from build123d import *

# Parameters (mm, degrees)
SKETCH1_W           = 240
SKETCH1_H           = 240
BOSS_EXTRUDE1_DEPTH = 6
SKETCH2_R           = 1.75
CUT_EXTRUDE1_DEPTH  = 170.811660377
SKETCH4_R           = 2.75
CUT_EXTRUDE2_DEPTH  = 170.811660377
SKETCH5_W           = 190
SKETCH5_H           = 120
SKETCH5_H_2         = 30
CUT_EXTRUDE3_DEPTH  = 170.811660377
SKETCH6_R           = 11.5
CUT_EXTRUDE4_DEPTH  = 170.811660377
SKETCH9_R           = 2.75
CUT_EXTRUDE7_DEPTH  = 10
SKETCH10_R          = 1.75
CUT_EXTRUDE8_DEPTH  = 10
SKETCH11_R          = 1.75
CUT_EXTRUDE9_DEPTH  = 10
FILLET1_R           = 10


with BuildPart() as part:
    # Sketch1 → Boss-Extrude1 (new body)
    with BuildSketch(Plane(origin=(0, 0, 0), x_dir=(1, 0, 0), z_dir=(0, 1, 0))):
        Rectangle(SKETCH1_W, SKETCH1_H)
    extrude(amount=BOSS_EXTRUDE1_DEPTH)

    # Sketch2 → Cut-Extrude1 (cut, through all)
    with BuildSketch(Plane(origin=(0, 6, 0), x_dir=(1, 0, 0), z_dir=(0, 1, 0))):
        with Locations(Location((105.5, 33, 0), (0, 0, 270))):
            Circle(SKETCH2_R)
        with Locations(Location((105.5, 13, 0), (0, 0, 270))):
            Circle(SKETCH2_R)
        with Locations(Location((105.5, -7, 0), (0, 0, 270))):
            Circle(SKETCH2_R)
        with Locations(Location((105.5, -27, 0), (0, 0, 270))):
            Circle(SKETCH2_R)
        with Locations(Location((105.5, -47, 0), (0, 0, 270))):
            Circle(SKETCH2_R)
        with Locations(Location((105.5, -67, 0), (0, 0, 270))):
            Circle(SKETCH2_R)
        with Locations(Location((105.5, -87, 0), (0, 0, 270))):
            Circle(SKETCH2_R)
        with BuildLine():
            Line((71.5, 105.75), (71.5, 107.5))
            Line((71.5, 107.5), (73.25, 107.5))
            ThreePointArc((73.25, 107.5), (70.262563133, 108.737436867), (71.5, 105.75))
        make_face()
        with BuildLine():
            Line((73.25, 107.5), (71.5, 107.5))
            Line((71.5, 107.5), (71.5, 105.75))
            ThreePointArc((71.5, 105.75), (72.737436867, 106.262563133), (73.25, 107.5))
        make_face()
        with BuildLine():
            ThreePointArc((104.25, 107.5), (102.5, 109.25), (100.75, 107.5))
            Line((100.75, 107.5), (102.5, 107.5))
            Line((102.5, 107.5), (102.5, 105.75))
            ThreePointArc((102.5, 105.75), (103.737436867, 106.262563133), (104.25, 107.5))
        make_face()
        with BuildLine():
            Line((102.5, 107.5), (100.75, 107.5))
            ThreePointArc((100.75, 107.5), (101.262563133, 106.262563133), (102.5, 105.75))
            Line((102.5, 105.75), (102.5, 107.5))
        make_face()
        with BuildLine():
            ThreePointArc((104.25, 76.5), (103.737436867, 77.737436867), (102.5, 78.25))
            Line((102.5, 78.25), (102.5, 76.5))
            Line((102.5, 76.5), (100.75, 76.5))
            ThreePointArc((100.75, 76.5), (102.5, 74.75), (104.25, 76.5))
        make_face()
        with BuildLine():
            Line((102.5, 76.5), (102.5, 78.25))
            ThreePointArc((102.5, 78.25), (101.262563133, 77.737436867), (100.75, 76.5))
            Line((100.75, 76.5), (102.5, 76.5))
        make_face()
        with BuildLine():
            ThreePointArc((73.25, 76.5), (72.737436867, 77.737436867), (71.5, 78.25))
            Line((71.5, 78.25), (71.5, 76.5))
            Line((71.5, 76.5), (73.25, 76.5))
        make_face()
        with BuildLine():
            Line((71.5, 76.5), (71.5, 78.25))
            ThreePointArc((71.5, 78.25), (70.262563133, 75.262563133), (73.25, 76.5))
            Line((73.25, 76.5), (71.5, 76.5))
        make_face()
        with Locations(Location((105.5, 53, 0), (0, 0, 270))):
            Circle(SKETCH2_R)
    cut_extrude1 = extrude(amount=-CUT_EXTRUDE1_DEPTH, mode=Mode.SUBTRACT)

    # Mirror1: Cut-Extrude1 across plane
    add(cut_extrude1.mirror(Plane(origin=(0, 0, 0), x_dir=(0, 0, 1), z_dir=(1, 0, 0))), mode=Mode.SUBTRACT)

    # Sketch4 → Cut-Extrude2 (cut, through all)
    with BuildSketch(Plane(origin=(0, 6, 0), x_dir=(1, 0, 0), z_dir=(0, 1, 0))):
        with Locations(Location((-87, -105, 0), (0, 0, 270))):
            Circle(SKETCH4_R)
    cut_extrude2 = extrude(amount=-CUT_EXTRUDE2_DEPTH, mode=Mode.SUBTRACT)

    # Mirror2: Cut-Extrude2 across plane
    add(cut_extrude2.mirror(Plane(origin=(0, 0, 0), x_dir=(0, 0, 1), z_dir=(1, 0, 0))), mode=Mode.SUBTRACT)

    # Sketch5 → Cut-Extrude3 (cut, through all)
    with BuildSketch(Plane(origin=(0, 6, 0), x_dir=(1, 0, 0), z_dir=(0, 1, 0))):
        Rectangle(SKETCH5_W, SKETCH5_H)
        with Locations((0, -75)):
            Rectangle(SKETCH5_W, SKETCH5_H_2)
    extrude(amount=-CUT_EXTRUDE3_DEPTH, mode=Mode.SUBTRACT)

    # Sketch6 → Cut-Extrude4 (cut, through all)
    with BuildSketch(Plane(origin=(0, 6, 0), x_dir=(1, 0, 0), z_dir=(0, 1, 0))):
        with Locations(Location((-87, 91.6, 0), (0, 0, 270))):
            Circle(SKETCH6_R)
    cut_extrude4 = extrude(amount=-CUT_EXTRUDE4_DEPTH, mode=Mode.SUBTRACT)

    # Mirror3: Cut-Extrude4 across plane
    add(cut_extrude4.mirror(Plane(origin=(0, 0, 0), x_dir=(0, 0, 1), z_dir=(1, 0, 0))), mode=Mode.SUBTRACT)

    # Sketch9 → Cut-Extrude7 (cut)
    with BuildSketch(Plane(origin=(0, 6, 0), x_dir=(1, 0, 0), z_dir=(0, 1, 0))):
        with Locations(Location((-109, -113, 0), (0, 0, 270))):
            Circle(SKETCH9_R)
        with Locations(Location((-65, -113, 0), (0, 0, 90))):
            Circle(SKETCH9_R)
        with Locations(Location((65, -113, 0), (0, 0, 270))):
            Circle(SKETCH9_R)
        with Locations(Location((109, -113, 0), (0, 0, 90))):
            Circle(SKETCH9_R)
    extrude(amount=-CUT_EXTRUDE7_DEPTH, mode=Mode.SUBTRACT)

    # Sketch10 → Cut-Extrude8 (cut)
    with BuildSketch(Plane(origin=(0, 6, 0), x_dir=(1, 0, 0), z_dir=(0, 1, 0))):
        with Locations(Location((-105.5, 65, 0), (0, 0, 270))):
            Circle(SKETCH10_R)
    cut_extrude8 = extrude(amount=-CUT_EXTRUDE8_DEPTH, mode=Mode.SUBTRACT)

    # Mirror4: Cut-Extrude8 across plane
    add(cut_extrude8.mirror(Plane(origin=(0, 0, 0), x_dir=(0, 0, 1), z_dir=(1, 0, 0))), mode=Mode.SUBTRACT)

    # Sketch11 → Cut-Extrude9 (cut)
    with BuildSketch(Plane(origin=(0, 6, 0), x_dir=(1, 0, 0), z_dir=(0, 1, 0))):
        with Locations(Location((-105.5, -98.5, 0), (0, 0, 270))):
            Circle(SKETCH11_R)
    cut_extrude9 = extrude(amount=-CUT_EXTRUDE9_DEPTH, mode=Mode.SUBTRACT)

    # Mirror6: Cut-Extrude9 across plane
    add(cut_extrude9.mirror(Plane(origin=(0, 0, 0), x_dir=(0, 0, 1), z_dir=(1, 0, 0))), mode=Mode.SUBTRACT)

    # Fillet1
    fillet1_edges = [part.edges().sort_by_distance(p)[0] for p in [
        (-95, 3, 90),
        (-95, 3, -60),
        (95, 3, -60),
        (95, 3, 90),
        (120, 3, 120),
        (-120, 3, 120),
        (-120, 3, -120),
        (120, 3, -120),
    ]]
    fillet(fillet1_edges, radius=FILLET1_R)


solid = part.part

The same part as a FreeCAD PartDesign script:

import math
import FreeCAD as App
import Part
import Sketcher
Q = App.Units.Quantity


def edges_at(feature, points):
    """Names of the edges that pass closest to the given points."""
    edges = feature.Shape.Edges
    near = lambda p: min(range(len(edges)), key=lambda i: edges[i].distToShape(Part.Vertex(*p))[0])
    return sorted({f"Edge{near(p) + 1}" for p in points})

doc = App.newDocument("Part")
body = doc.addObject("PartDesign::Body", "Body")

# Sketch on XZ plane
sketch1 = body.newObject("Sketcher::SketchObject", "Sketch")
sketch1.AttachmentSupport = (doc.getObject("XZ_Plane"), [""])
sketch1.MapMode = "FlatFace"
sketch1.addGeometry([
    Part.LineSegment(App.Vector(-120, -120, 0), App.Vector(-120, 120, 0)),
    Part.LineSegment(App.Vector(-120, 120, 0), App.Vector(120, 120, 0)),
    Part.LineSegment(App.Vector(120, 120, 0), App.Vector(120, -120, 0)),
    Part.LineSegment(App.Vector(120, -120, 0), App.Vector(-120, -120, 0)),
], False)
sketch1.addConstraint([
    Sketcher.Constraint("Coincident", 0, 2, 1, 1),
    Sketcher.Constraint("Coincident", 1, 2, 2, 1),
    Sketcher.Constraint("Coincident", 2, 2, 3, 1),
    Sketcher.Constraint("Coincident", 3, 2, 0, 1),
    Sketcher.Constraint("Vertical", 0),
    Sketcher.Constraint("Horizontal", 1),
    Sketcher.Constraint("Vertical", 2),
    Sketcher.Constraint("Horizontal", 3),
    Sketcher.Constraint("Symmetric", 0, 2, 2, 2, -1, 1),
    Sketcher.Constraint("Equal", 3, 0),
    Sketcher.Constraint("DistanceX", 1, 1, 1, 2, Q("240 mm")),
])
pad1 = body.newObject("PartDesign::Pad", "Pad")
pad1.Profile = sketch1
pad1.Length = 6
pad1.Reversed = True

# Sketch on XZ plane
sketch2 = body.newObject("Sketcher::SketchObject", "Sketch001")
sketch2.AttachmentSupport = (doc.getObject("XZ_Plane"), [""])
sketch2.MapMode = "FlatFace"
sketch2.AttachmentOffset = App.Placement(App.Vector(0, 0, -6), App.Rotation())
sketch2.addGeometry([
    Part.Circle(App.Vector(105.5, -33, 0), App.Vector(0, 0, 1), 1.75),  # 0
    Part.Circle(App.Vector(105.5, -13, 0), App.Vector(0, 0, 1), 1.75),  # 1
    Part.Circle(App.Vector(105.5, 7, 0), App.Vector(0, 0, 1), 1.75),  # 2
    Part.Circle(App.Vector(105.5, 27, 0), App.Vector(0, 0, 1), 1.75),  # 3
    Part.Circle(App.Vector(105.5, 47, 0), App.Vector(0, 0, 1), 1.75),  # 4
    Part.Circle(App.Vector(105.5, 67, 0), App.Vector(0, 0, 1), 1.75),  # 5
    Part.Circle(App.Vector(105.5, 87, 0), App.Vector(0, 0, 1), 1.75),  # 6
    Part.ArcOfCircle(Part.Circle(App.Vector(71.5, -107.5, 0), App.Vector(0, 0, 1), 1.75), math.radians(90), math.radians(360)),  # 7
    Part.ArcOfCircle(Part.Circle(App.Vector(71.5, -107.5, 0), App.Vector(0, 0, 1), 1.75), math.radians(0), math.radians(90)),  # 8
    Part.ArcOfCircle(Part.Circle(App.Vector(102.5, -107.5, 0), App.Vector(0, 0, 1), 1.75), math.radians(180), math.radians(360)),  # 9
    Part.ArcOfCircle(Part.Circle(App.Vector(102.5, -107.5, 0), App.Vector(0, 0, 1), 1.75), math.radians(90), math.radians(180)),  # 10
    Part.ArcOfCircle(Part.Circle(App.Vector(102.5, -107.5, 0), App.Vector(0, 0, 1), 1.75), math.radians(0), math.radians(90)),  # 11
    Part.ArcOfCircle(Part.Circle(App.Vector(102.5, -76.5, 0), App.Vector(0, 0, 1), 1.75), math.radians(-90), math.radians(0)),  # 12
    Part.ArcOfCircle(Part.Circle(App.Vector(102.5, -76.5, 0), App.Vector(0, 0, 1), 1.75), math.radians(180), math.radians(270)),  # 13
    Part.ArcOfCircle(Part.Circle(App.Vector(102.5, -76.5, 0), App.Vector(0, 0, 1), 1.75), math.radians(0), math.radians(180)),  # 14
    Part.ArcOfCircle(Part.Circle(App.Vector(71.5, -76.5, 0), App.Vector(0, 0, 1), 1.75), math.radians(-90), math.radians(0)),  # 15
    Part.ArcOfCircle(Part.Circle(App.Vector(71.5, -76.5, 0), App.Vector(0, 0, 1), 1.75), math.radians(0), math.radians(270)),  # 16
    Part.Circle(App.Vector(105.5, -53, 0), App.Vector(0, 0, 1), 1.75),  # 17
], False)
sketch2.addConstraint([
    Sketcher.Constraint("Tangent", 7, 1, 8, 2),
    Sketcher.Constraint("Coincident", 8, 1, 7, 2),
    Sketcher.Constraint("Tangent", 9, 1, 10, 2),
    Sketcher.Constraint("Tangent", 10, 1, 11, 2),
    Sketcher.Constraint("Tangent", 11, 1, 9, 2),
    Sketcher.Constraint("Tangent", 12, 1, 13, 2),
    Sketcher.Constraint("Tangent", 13, 1, 14, 2),
    Sketcher.Constraint("Tangent", 14, 1, 12, 2),
    Sketcher.Constraint("Tangent", 15, 1, 16, 2),
    Sketcher.Constraint("Coincident", 16, 1, 15, 2),
    Sketcher.Constraint("Equal", 0, 1),
    Sketcher.Constraint("Equal", 1, 2),
    Sketcher.Constraint("Equal", 2, 3),
    Sketcher.Constraint("Equal", 3, 4),
    Sketcher.Constraint("Equal", 4, 5),
    Sketcher.Constraint("Equal", 5, 6),
    Sketcher.Constraint("Equal", 6, 7),
    Sketcher.Constraint("Equal", 8, 9),
    Sketcher.Constraint("Equal", 11, 12),
    Sketcher.Constraint("Equal", 14, 15),
    Sketcher.Constraint("Equal", 16, 17),
    Sketcher.Constraint("Horizontal", 8, 3, 9, 3),
    Sketcher.Constraint("Horizontal", 14, 3, 15, 3),
    Sketcher.Constraint("Horizontal", 11, 3, 8, 1),
    Sketcher.Constraint("Horizontal", 8, 1, 9, 1),
    Sketcher.Constraint("Horizontal", 9, 1, 11, 1),
    Sketcher.Constraint("Horizontal", 16, 3, 13, 1),
    Sketcher.Constraint("Horizontal", 13, 1, 14, 1),
    Sketcher.Constraint("Horizontal", 14, 1, 16, 1),
    Sketcher.Constraint("Vertical", 0, 3, 1, 3),
    Sketcher.Constraint("Vertical", 1, 3, 2, 3),
    Sketcher.Constraint("Vertical", 2, 3, 3, 3),
    Sketcher.Constraint("Vertical", 3, 3, 4, 3),
    Sketcher.Constraint("Vertical", 4, 3, 5, 3),
    Sketcher.Constraint("Vertical", 5, 3, 6, 3),
    Sketcher.Constraint("Vertical", 11, 3, 12, 3),
    Sketcher.Constraint("Vertical", 8, 3, 15, 3),
    Sketcher.Constraint("Vertical", 6, 3, 17, 3),
    Sketcher.Constraint("Vertical", 16, 3, 7, 1),
    Sketcher.Constraint("Vertical", 14, 3, 10, 1),
    Sketcher.Constraint("Vertical", 10, 1, 12, 1),
    Sketcher.Constraint("Vertical", 7, 1, 15, 1),
    Sketcher.Constraint("Diameter", 0, Q("3.5 mm")),
    Sketcher.Constraint("DistanceY", 0, 3, -1, 1, Q("33 mm")),
    Sketcher.Constraint("DistanceY", 1, 3, -1, 1, Q("13 mm")),
    Sketcher.Constraint("DistanceY", -1, 1, 2, 3, Q("7 mm")),
    Sketcher.Constraint("DistanceY", -1, 1, 3, 3, Q("27 mm")),
    Sketcher.Constraint("DistanceY", -1, 1, 4, 3, Q("47 mm")),
    Sketcher.Constraint("DistanceY", -1, 1, 5, 3, Q("67 mm")),
    Sketcher.Constraint("DistanceY", -1, 1, 6, 3, Q("87 mm")),
    Sketcher.Constraint("DistanceY", 17, 3, -1, 1, Q("53 mm")),
    Sketcher.Constraint("DistanceX", 7, 3, 0, 3, Q("34 mm")),
    Sketcher.Constraint("DistanceX", 7, 3, 9, 3, Q("31 mm")),
    Sketcher.Constraint("DistanceY", 9, 3, 12, 3, Q("31 mm")),
    Sketcher.Constraint("DistanceX", -1, 1, 0, 3, Q("105.5 mm")),
    Sketcher.Constraint("DistanceY", 7, 3, -1, 1, Q("107.5 mm")),
])
pocket1 = body.newObject("PartDesign::Pocket", "Pocket")
pocket1.Profile = sketch2
pocket1.Type = "ThroughAll"
pocket1.Reversed = True
doc.recompute()

mirrored = body.newObject("PartDesign::Mirrored", "Mirrored")
mirrored.Originals = [pocket1]
mirrored.MirrorPlane = (doc.getObject("YZ_Plane"), [""])
body.Tip = mirrored

# Sketch on XZ plane
sketch3 = body.newObject("Sketcher::SketchObject", "Sketch002")
sketch3.AttachmentSupport = (doc.getObject("XZ_Plane"), [""])
sketch3.MapMode = "FlatFace"
sketch3.AttachmentOffset = App.Placement(App.Vector(0, 0, -6), App.Rotation())
sketch3.addGeometry(Part.Circle(App.Vector(-87, 105, 0), App.Vector(0, 0, 1), 2.75), False)
sketch3.addConstraint([
    Sketcher.Constraint("Diameter", 0, Q("5.5 mm")),
    Sketcher.Constraint("DistanceX", 0, 3, -1, 1, Q("87 mm")),
    Sketcher.Constraint("DistanceY", -1, 1, 0, 3, Q("105 mm")),
])
pocket2 = body.newObject("PartDesign::Pocket", "Pocket001")
pocket2.Profile = sketch3
pocket2.Type = "ThroughAll"
pocket2.Reversed = True
doc.recompute()

mirrored2 = body.newObject("PartDesign::Mirrored", "Mirrored001")
mirrored2.Originals = [pocket2]
mirrored2.MirrorPlane = (doc.getObject("YZ_Plane"), [""])
body.Tip = mirrored2

# Sketch on XZ plane
sketch4 = body.newObject("Sketcher::SketchObject", "Sketch003")
sketch4.AttachmentSupport = (doc.getObject("XZ_Plane"), [""])
sketch4.MapMode = "FlatFace"
sketch4.AttachmentOffset = App.Placement(App.Vector(0, 0, -6), App.Rotation())
sketch4.addGeometry([
    Part.LineSegment(App.Vector(-95, -60, 0), App.Vector(-95, 90, 0)),
    Part.LineSegment(App.Vector(-95, 90, 0), App.Vector(95, 90, 0)),
    Part.LineSegment(App.Vector(95, 90, 0), App.Vector(95, -60, 0)),
    Part.LineSegment(App.Vector(95, -60, 0), App.Vector(-95, -60, 0)),
], False)
sketch4.addConstraint([
    Sketcher.Constraint("Coincident", 0, 2, 1, 1),
    Sketcher.Constraint("Coincident", 1, 2, 2, 1),
    Sketcher.Constraint("Coincident", 2, 2, 3, 1),
    Sketcher.Constraint("Coincident", 3, 2, 0, 1),
    Sketcher.Constraint("Vertical", 0),
    Sketcher.Constraint("Horizontal", 1),
    Sketcher.Constraint("Vertical", 2),
    Sketcher.Constraint("Horizontal", 3),
    Sketcher.Constraint("DistanceX", 1, 1, 1, 2, Q("190 mm")),
    Sketcher.Constraint("DistanceY", 0, 1, 0, 2, Q("150 mm")),
    Sketcher.Constraint("DistanceX", 0, 2, -1, 1, Q("95 mm")),
    Sketcher.Constraint("DistanceY", -1, 1, 0, 2, Q("90 mm")),
])
pocket3 = body.newObject("PartDesign::Pocket", "Pocket002")
pocket3.Profile = sketch4
pocket3.Type = "ThroughAll"
pocket3.Reversed = True

# Sketch on XZ plane
sketch5 = body.newObject("Sketcher::SketchObject", "Sketch004")
sketch5.AttachmentSupport = (doc.getObject("XZ_Plane"), [""])
sketch5.MapMode = "FlatFace"
sketch5.AttachmentOffset = App.Placement(App.Vector(0, 0, -6), App.Rotation())
sketch5.addGeometry(Part.Circle(App.Vector(-87, -91.6, 0), App.Vector(0, 0, 1), 11.5), False)
sketch5.addConstraint([
    Sketcher.Constraint("Diameter", 0, Q("23 mm")),
    Sketcher.Constraint("DistanceX", 0, 3, -1, 1, Q("87 mm")),
    Sketcher.Constraint("DistanceY", 0, 3, -1, 1, Q("91.6 mm")),
])
pocket4 = body.newObject("PartDesign::Pocket", "Pocket003")
pocket4.Profile = sketch5
pocket4.Type = "ThroughAll"
pocket4.Reversed = True
doc.recompute()

mirrored3 = body.newObject("PartDesign::Mirrored", "Mirrored002")
mirrored3.Originals = [pocket4]
mirrored3.MirrorPlane = (doc.getObject("YZ_Plane"), [""])
body.Tip = mirrored3

# Sketch on XZ plane
sketch6 = body.newObject("Sketcher::SketchObject", "Sketch005")
sketch6.AttachmentSupport = (doc.getObject("XZ_Plane"), [""])
sketch6.MapMode = "FlatFace"
sketch6.AttachmentOffset = App.Placement(App.Vector(0, 0, -6), App.Rotation())
sketch6.addGeometry([
    Part.Circle(App.Vector(-109, 113, 0), App.Vector(0, 0, 1), 2.75),
    Part.Circle(App.Vector(-65, 113, 0), App.Vector(0, 0, 1), 2.75),
    Part.Circle(App.Vector(65, 113, 0), App.Vector(0, 0, 1), 2.75),
    Part.Circle(App.Vector(109, 113, 0), App.Vector(0, 0, 1), 2.75),
], False)
sketch6.addConstraint([
    Sketcher.Constraint("Equal", 0, 1),
    Sketcher.Constraint("Equal", 1, 2),
    Sketcher.Constraint("Equal", 2, 3),
    Sketcher.Constraint("Symmetric", 1, 3, 2, 3, -2),
    Sketcher.Constraint("Symmetric", 0, 3, 3, 3, -2),
    Sketcher.Constraint("Horizontal", 0, 3, 1, 3),
    Sketcher.Constraint("Diameter", 0, Q("5.5 mm")),
    Sketcher.Constraint("DistanceX", 0, 3, -1, 1, Q("109 mm")),
    Sketcher.Constraint("DistanceY", -1, 1, 0, 3, Q("113 mm")),
    Sketcher.Constraint("DistanceX", 1, 3, -1, 1, Q("65 mm")),
])
pocket5 = body.newObject("PartDesign::Pocket", "Pocket004")
pocket5.Profile = sketch6
pocket5.Length = 10
pocket5.Reversed = True

# Sketch on XZ plane
sketch7 = body.newObject("Sketcher::SketchObject", "Sketch006")
sketch7.AttachmentSupport = (doc.getObject("XZ_Plane"), [""])
sketch7.MapMode = "FlatFace"
sketch7.AttachmentOffset = App.Placement(App.Vector(0, 0, -6), App.Rotation())
sketch7.addGeometry(Part.Circle(App.Vector(-105.5, -65, 0), App.Vector(0, 0, 1), 1.75), False)
sketch7.addConstraint([
    Sketcher.Constraint("Diameter", 0, Q("3.5 mm")),
    Sketcher.Constraint("DistanceY", 0, 3, -1, 1, Q("65 mm")),
    Sketcher.Constraint("DistanceX", 0, 3, -1, 1, Q("105.5 mm")),
])
pocket6 = body.newObject("PartDesign::Pocket", "Pocket005")
pocket6.Profile = sketch7
pocket6.Length = 10
pocket6.Reversed = True
doc.recompute()

mirrored4 = body.newObject("PartDesign::Mirrored", "Mirrored003")
mirrored4.Originals = [pocket6]
mirrored4.MirrorPlane = (doc.getObject("YZ_Plane"), [""])
body.Tip = mirrored4

# Sketch on XZ plane
sketch8 = body.newObject("Sketcher::SketchObject", "Sketch007")
sketch8.AttachmentSupport = (doc.getObject("XZ_Plane"), [""])
sketch8.MapMode = "FlatFace"
sketch8.AttachmentOffset = App.Placement(App.Vector(0, 0, -6), App.Rotation())
sketch8.addGeometry(Part.Circle(App.Vector(-105.5, 98.5, 0), App.Vector(0, 0, 1), 1.75), False)
sketch8.addConstraint([
    Sketcher.Constraint("Diameter", 0, Q("3.5 mm")),
    Sketcher.Constraint("DistanceX", 0, 3, -1, 1, Q("105.5 mm")),
    Sketcher.Constraint("DistanceY", -1, 1, 0, 3, Q("98.5 mm")),
])
pocket7 = body.newObject("PartDesign::Pocket", "Pocket006")
pocket7.Profile = sketch8
pocket7.Length = 10
pocket7.Reversed = True
doc.recompute()

mirrored5 = body.newObject("PartDesign::Mirrored", "Mirrored004")
mirrored5.Originals = [pocket7]
mirrored5.MirrorPlane = (doc.getObject("YZ_Plane"), [""])
body.Tip = mirrored5
doc.recompute()

fillet = body.newObject("PartDesign::Fillet", "Fillet")
fillet.Base = (mirrored5, edges_at(mirrored5, [
    (-95, 3, 90),
    (-95, 3, -60),
    (95, 3, -60),
    (95, 3, 90),
    (120, 3, 120),
    (-120, 3, 120),
    (-120, 3, -120),
    (120, 3, -120),
]))
fillet.Radius = 10

doc.recompute()
